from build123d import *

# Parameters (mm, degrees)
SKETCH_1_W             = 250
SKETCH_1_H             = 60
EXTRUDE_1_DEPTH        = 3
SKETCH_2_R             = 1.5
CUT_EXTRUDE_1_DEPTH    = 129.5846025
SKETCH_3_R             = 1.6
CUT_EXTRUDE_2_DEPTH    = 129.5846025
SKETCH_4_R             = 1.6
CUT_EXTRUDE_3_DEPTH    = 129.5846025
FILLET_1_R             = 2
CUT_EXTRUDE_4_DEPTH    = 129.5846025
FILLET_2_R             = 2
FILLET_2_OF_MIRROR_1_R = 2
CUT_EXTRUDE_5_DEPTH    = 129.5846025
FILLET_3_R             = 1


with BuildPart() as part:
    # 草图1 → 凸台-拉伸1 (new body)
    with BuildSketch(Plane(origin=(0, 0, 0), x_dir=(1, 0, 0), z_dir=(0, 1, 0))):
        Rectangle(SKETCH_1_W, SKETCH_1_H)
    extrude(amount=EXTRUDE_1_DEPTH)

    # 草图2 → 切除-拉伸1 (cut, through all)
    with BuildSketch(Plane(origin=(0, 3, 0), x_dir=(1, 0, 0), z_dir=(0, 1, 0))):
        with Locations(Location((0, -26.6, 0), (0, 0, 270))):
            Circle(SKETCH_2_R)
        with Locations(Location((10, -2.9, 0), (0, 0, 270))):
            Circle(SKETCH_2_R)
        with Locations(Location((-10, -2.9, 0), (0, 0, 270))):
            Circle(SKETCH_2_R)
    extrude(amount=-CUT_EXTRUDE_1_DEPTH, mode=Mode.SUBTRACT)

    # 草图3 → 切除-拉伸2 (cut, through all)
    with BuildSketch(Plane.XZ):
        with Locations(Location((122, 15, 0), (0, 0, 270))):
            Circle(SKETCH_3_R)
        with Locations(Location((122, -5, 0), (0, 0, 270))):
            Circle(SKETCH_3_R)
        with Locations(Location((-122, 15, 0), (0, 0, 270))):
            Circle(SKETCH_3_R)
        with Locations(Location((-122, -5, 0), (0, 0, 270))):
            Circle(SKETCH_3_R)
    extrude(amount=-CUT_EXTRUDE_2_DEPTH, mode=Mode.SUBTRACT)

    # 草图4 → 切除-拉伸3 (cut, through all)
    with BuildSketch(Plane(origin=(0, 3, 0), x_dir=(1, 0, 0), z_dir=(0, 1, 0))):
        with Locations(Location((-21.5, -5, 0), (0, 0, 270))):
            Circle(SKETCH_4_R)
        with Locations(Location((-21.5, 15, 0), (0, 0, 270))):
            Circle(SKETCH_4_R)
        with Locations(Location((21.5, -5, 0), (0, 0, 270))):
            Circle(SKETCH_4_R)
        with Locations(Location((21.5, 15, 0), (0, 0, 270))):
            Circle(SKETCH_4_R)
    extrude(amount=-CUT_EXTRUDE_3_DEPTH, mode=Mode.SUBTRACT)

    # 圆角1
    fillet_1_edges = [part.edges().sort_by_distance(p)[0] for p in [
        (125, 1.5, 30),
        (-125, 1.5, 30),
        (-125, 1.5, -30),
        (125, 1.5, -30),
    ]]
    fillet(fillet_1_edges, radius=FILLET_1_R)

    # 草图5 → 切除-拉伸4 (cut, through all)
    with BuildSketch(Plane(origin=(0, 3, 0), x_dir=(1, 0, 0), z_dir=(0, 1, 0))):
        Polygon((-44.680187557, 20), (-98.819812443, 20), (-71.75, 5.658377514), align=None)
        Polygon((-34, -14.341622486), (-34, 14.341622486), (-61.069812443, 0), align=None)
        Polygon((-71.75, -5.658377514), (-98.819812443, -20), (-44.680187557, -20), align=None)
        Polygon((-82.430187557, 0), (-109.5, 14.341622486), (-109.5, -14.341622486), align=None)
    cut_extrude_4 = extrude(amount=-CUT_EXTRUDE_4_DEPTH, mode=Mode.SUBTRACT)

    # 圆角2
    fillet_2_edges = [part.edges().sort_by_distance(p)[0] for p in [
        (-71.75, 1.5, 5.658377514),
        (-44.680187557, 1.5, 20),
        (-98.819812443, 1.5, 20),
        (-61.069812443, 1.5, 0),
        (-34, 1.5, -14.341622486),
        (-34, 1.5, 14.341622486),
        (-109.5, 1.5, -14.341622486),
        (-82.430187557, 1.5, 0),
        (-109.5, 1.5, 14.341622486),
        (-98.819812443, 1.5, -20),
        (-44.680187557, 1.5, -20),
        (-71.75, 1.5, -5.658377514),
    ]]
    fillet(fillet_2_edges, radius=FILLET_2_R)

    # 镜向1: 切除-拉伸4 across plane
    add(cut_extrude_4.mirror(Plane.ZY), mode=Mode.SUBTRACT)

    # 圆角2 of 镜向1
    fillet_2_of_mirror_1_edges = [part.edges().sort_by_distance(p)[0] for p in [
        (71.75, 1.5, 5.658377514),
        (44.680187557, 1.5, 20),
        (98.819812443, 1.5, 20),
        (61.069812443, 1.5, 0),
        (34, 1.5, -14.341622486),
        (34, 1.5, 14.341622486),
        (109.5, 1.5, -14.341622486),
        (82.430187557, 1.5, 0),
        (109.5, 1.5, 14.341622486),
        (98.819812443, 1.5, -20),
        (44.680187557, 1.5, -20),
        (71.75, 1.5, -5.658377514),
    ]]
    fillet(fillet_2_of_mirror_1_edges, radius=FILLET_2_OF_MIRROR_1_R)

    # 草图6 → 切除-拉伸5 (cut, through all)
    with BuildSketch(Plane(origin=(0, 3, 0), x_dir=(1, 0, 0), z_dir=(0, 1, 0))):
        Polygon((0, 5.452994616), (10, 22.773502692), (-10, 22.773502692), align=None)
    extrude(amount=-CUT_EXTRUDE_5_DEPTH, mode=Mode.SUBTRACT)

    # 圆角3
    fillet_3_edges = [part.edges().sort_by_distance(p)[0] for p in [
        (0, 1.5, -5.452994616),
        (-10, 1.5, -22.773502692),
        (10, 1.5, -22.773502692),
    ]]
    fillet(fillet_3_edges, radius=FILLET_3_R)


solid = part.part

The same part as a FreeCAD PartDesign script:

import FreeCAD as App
import Part
import Sketcher
Q = App.Units.Quantity


def edges_at(feature, points):
    """Names of the edges that pass closest to the given points."""
    edges = feature.Shape.Edges
    near = lambda p: min(range(len(edges)), key=lambda i: edges[i].distToShape(Part.Vertex(*p))[0])
    return sorted({f"Edge{near(p) + 1}" for p in points})

doc = App.newDocument("Part")
body = doc.addObject("PartDesign::Body", "Body")

# Sketch on XZ plane
sketch1 = body.newObject("Sketcher::SketchObject", "Sketch")
sketch1.AttachmentSupport = (doc.getObject("XZ_Plane"), [""])
sketch1.MapMode = "FlatFace"
sketch1.addGeometry(Part.LineSegment(App.Vector(-125, -30, 0), App.Vector(-125, 30, 0)), False)
sketch1.addGeometry(Part.LineSegment(App.Vector(-125, 30, 0), App.Vector(125, 30, 0)), False)
sketch1.addGeometry(Part.LineSegment(App.Vector(125, 30, 0), App.Vector(125, -30, 0)), False)
sketch1.addGeometry(Part.LineSegment(App.Vector(125, -30, 0), App.Vector(-125, -30, 0)), False)
sketch1.addConstraint(Sketcher.Constraint("Coincident", 0, 2, 1, 1))
sketch1.addConstraint(Sketcher.Constraint("Coincident", 1, 2, 2, 1))
sketch1.addConstraint(Sketcher.Constraint("Coincident", 2, 2, 3, 1))
sketch1.addConstraint(Sketcher.Constraint("Coincident", 3, 2, 0, 1))
sketch1.addConstraint(Sketcher.Constraint("Vertical", 0))
sketch1.addConstraint(Sketcher.Constraint("Horizontal", 1))
sketch1.addConstraint(Sketcher.Constraint("Vertical", 2))
sketch1.addConstraint(Sketcher.Constraint("Horizontal", 3))
sketch1.addConstraint(Sketcher.Constraint("Symmetric", 0, 2, 2, 2, -1, 1))
sketch1.addConstraint(Sketcher.Constraint("DistanceX", 1, 1, 1, 2, 250.0))
sketch1.addConstraint(Sketcher.Constraint("DistanceY", 0, 1, 0, 2, 60.0))
pad1 = body.newObject("PartDesign::Pad", "Pad")
pad1.Profile = sketch1
pad1.Length = 3
pad1.Reversed = True

# Sketch on XZ plane
sketch2 = body.newObject("Sketcher::SketchObject", "Sketch001")
sketch2.AttachmentSupport = (doc.getObject("XZ_Plane"), [""])
sketch2.MapMode = "FlatFace"
sketch2.AttachmentOffset = App.Placement(App.Vector(0, 0, -3), App.Rotation())
sketch2.addGeometry(Part.Circle(App.Vector(0, 26.6, 0), App.Vector(0, 0, 1), 1.5), False)
sketch2.addGeometry(Part.Circle(App.Vector(10, 2.9, 0), App.Vector(0, 0, 1), 1.5), False)
sketch2.addGeometry(Part.Circle(App.Vector(-10, 2.9, 0), App.Vector(0, 0, 1), 1.5), False)
sketch2.addConstraint(Sketcher.Constraint("Equal", 0, 1))
sketch2.addConstraint(Sketcher.Constraint("Equal", 1, 2))
sketch2.addConstraint(Sketcher.Constraint("Symmetric", 1, 3, 2, 3, -2))
sketch2.addConstraint(Sketcher.Constraint("PointOnObject", 0, 3, -2))
sketch2.addConstraint(Sketcher.Constraint("Diameter", 0, 3.0))
sketch2.addConstraint(Sketcher.Constraint("DistanceX", -1, 1, 1, 3, 10.0))
sketch2.addConstraint(Sketcher.Constraint("DistanceY", -1, 1, 0, 3, 26.6))
sketch2.addConstraint(Sketcher.Constraint("DistanceY", -1, 1, 1, 3, 2.9))
pocket1 = body.newObject("PartDesign::Pocket", "Pocket")
pocket1.Profile = sketch2
pocket1.Type = "ThroughAll"
pocket1.Reversed = True

# Sketch on XZ plane
sketch3 = body.newObject("Sketcher::SketchObject", "Sketch002")
sketch3.AttachmentSupport = (doc.getObject("XZ_Plane"), [""])
sketch3.MapMode = "FlatFace"
sketch3.addGeometry(Part.Circle(App.Vector(122, 15, 0), App.Vector(0, 0, 1), 1.6), False)
sketch3.addGeometry(Part.Circle(App.Vector(122, -5, 0), App.Vector(0, 0, 1), 1.6), False)
sketch3.addGeometry(Part.Circle(App.Vector(-122, 15, 0), App.Vector(0, 0, 1), 1.6), False)
sketch3.addGeometry(Part.Circle(App.Vector(-122, -5, 0), App.Vector(0, 0, 1), 1.6), False)
sketch3.addConstraint(Sketcher.Constraint("Equal", 0, 1))
sketch3.addConstraint(Sketcher.Constraint("Equal", 1, 2))
sketch3.addConstraint(Sketcher.Constraint("Equal", 2, 3))
sketch3.addConstraint(Sketcher.Constraint("Symmetric", 0, 3, 2, 3, -2))
sketch3.addConstraint(Sketcher.Constraint("Symmetric", 1, 3, 3, 3, -2))
sketch3.addConstraint(Sketcher.Constraint("Vertical", 0, 3, 1, 3))
sketch3.addConstraint(Sketcher.Constraint("Diameter", 0, 3.2))
sketch3.addConstraint(Sketcher.Constraint("DistanceX", -1, 1, 0, 3, 122.0))
sketch3.addConstraint(Sketcher.Constraint("DistanceY", -1, 1, 0, 3, 15.0))
sketch3.addConstraint(Sketcher.Constraint("DistanceY", 1, 3, -1, 1, 5.0))
pocket2 = body.newObject("PartDesign::Pocket", "Pocket001")
pocket2.Profile = sketch3
pocket2.Type = "ThroughAll"

# Sketch on XZ plane
sketch4 = body.newObject("Sketcher::SketchObject", "Sketch003")
sketch4.AttachmentSupport = (doc.getObject("XZ_Plane"), [""])
sketch4.MapMode = "FlatFace"
sketch4.AttachmentOffset = App.Placement(App.Vector(0, 0, -3), App.Rotation())
sketch4.addGeometry(Part.Circle(App.Vector(-21.5, 5, 0), App.Vector(0, 0, 1), 1.6), False)
sketch4.addGeometry(Part.Circle(App.Vector(-21.5, -15, 0), App.Vector(0, 0, 1), 1.6), False)
sketch4.addGeometry(Part.Circle(App.Vector(21.5, 5, 0), App.Vector(0, 0, 1), 1.6), False)
sketch4.addGeometry(Part.Circle(App.Vector(21.5, -15, 0), App.Vector(0, 0, 1), 1.6), False)
sketch4.addConstraint(Sketcher.Constraint("Equal", 0, 1))
sketch4.addConstraint(Sketcher.Constraint("Equal", 1, 2))
sketch4.addConstraint(Sketcher.Constraint("Equal", 2, 3))
sketch4.addConstraint(Sketcher.Constraint("Symmetric", 0, 3, 2, 3, -2))
sketch4.addConstraint(Sketcher.Constraint("Symmetric", 1, 3, 3, 3, -2))
sketch4.addConstraint(Sketcher.Constraint("Vertical", 0, 3, 1, 3))
sketch4.addConstraint(Sketcher.Constraint("Diameter", 0, 3.2))
sketch4.addConstraint(Sketcher.Constraint("DistanceY", -1, 1, 0, 3, 5.0))
sketch4.addConstraint(Sketcher.Constraint("DistanceY", 1, 3, -1, 1, 15.0))
sketch4.addConstraint(Sketcher.Constraint("DistanceX", 0, 3, 2, 3, 43.0))
pocket3 = body.newObject("PartDesign::Pocket", "Pocket002")
pocket3.Profile = sketch4
pocket3.Type = "ThroughAll"
pocket3.Reversed = True
doc.recompute()

fillet = body.newObject("PartDesign::Fillet", "Fillet")
fillet.Base = (pocket3, edges_at(pocket3, [
    (125, 1.5, 30),
    (-125, 1.5, 30),
    (-125, 1.5, -30),
    (125, 1.5, -30),
]))
fillet.Radius = 2

# Sketch on XZ plane
sketch5 = body.newObject("Sketcher::SketchObject", "Sketch004")
sketch5.AttachmentSupport = (doc.getObject("XZ_Plane"), [""])
sketch5.MapMode = "FlatFace"
sketch5.AttachmentOffset = App.Placement(App.Vector(0, 0, -3), App.Rotation())
sketch5.addGeometry(Part.LineSegment(App.Vector(-45, -20, 0), App.Vector(-99, -20, 0)), False)
sketch5.addGeometry(Part.LineSegment(App.Vector(-99, -20, 0), App.Vector(-72, -6, 0)), False)
sketch5.addGeometry(Part.LineSegment(App.Vector(-72, -6, 0), App.Vector(-45, -20, 0)), False)
sketch5.addGeometry(Part.LineSegment(App.Vector(-34, 14, 0), App.Vector(-34, -14, 0)), False)
sketch5.addGeometry(Part.LineSegment(App.Vector(-34, -14, 0), App.Vector(-61, 0, 0)), False)
sketch5.addGeometry(Part.LineSegment(App.Vector(-61, 0, 0), App.Vector(-34, 14, 0)), False)
sketch5.addGeometry(Part.LineSegment(App.Vector(-72, 6, 0), App.Vector(-99, 20, 0)), False)
sketch5.addGeometry(Part.LineSegment(App.Vector(-99, 20, 0), App.Vector(-45, 20, 0)), False)
sketch5.addGeometry(Part.LineSegment(App.Vector(-45, 20, 0), App.Vector(-72, 6, 0)), False)
sketch5.addGeometry(Part.LineSegment(App.Vector(-82, 0, 0), App.Vector(-110, -14, 0)), False)
sketch5.addGeometry(Part.LineSegment(App.Vector(-110, -14, 0), App.Vector(-110, 14, 0)), False)
sketch5.addGeometry(Part.LineSegment(App.Vector(-110, 14, 0), App.Vector(-82, 0, 0)), False)
sketch5.addConstraint(Sketcher.Constraint("Coincident", 0, 2, 1, 1))
sketch5.addConstraint(Sketcher.Constraint("Coincident", 1, 2, 2, 1))
sketch5.addConstraint(Sketcher.Constraint("Coincident", 2, 2, 0, 1))
sketch5.addConstraint(Sketcher.Constraint("Coincident", 3, 2, 4, 1))
sketch5.addConstraint(Sketcher.Constraint("Coincident", 4, 2, 5, 1))
sketch5.addConstraint(Sketcher.Constraint("Coincident", 5, 2, 3, 1))
sketch5.addConstraint(Sketcher.Constraint("Coincident", 6, 2, 7, 1))
sketch5.addConstraint(Sketcher.Constraint("Coincident", 7, 2, 8, 1))
sketch5.addConstraint(Sketcher.Constraint("Coincident", 8, 2, 6, 1))
sketch5.addConstraint(Sketcher.Constraint("Coincident", 9, 2, 10, 1))
sketch5.addConstraint(Sketcher.Constraint("Coincident", 10, 2, 11, 1))
sketch5.addConstraint(Sketcher.Constraint("Coincident", 11, 2, 9, 1))
sketch5.addConstraint(Sketcher.Constraint("Horizontal", 0))
sketch5.addConstraint(Sketcher.Constraint("Vertical", 3))
sketch5.addConstraint(Sketcher.Constraint("Horizontal", 7))
sketch5.addConstraint(Sketcher.Constraint("Vertical", 10))
sketch5.addConstraint(Sketcher.Constraint("Symmetric", 0, 2, 6, 2, -1))
sketch5.addConstraint(Sketcher.Constraint("Symmetric", 1, 2, 8, 2, -1))
sketch5.addConstraint(Sketcher.Constraint("PointOnObject", 4, 2, -1))
sketch5.addConstraint(Sketcher.Constraint("PointOnObject", 11, 2, -1))
sketch5.addConstraint(Sketcher.Constraint("Parallel", 2, 4))
sketch5.addConstraint(Sketcher.Constraint("Parallel", 1, 5))
sketch5.addConstraint(Sketcher.Constraint("Parallel", 4, 6))
sketch5.addConstraint(Sketcher.Constraint("Parallel", 5, 8))
sketch5.addConstraint(Sketcher.Constraint("Parallel", 8, 9))
sketch5.addConstraint(Sketcher.Constraint("Parallel", 6, 11))
sketch5.addConstraint(Sketcher.Constraint("Horizontal", 3, 2, 9, 2))
sketch5.addConstraint(Sketcher.Constraint("Equal", 2, 4))
sketch5.addConstraint(Sketcher.Constraint("DistanceY", 0, 2, -1, 1, 20.0))
sketch5.addConstraint(Sketcher.Constraint("DistanceX", 3, 2, -1, 1, 34.0))
sketch5.addConstraint(Sketcher.Constraint("DistanceX", 9, 2, -1, 1, 109.5))
sketch5.addConstraint(Sketcher.Constraint("DistanceX", 1, 2, -1, 1, 71.75))
sketch5.addConstraint(Sketcher.Constraint("DistanceX", 0, 2, 0, 1, 54.139625))
sketch5.addConstraint(Sketcher.Constraint("DistanceY", 3, 2, 3, 1, 28.683245))
pocket4 = body.newObject("PartDesign::Pocket", "Pocket003")
pocket4.Profile = sketch5
pocket4.Type = "ThroughAll"
pocket4.Reversed = True
doc.recompute()

fillet2 = body.newObject("PartDesign::Fillet", "Fillet001")
fillet2.Base = (pocket4, edges_at(pocket4, [
    (-71.75, 1.5, 5.658),
    (-44.68, 1.5, 20),
    (-98.82, 1.5, 20),
    (-61.07, 1.5, 0),
    (-34, 1.5, -14.342),
    (-34, 1.5, 14.342),
    (-109.5, 1.5, -14.342),
    (-82.43, 1.5, 0),
    (-109.5, 1.5, 14.342),
    (-98.82, 1.5, -20),
    (-44.68, 1.5, -20),
    (-71.75, 1.5, -5.658),
]))
fillet2.Radius = 2
doc.recompute()

mirrored = body.newObject("PartDesign::Mirrored", "Mirrored")
mirrored.Originals = [pocket4]
mirrored.MirrorPlane = (doc.getObject("YZ_Plane"), [""])
body.Tip = mirrored
doc.recompute()

fillet3 = body.newObject("PartDesign::Fillet", "Fillet002")
fillet3.Base = (mirrored, edges_at(mirrored, [
    (71.75, 1.5, 5.658),
    (44.68, 1.5, 20),
    (98.82, 1.5, 20),
    (61.07, 1.5, 0),
    (34, 1.5, -14.342),
    (34, 1.5, 14.342),
    (109.5, 1.5, -14.342),
    (82.43, 1.5, 0),
    (109.5, 1.5, 14.342),
    (98.82, 1.5, -20),
    (44.68, 1.5, -20),
    (71.75, 1.5, -5.658),
]))
fillet3.Radius = 2

# Sketch on XZ plane
sketch6 = body.newObject("Sketcher::SketchObject", "Sketch005")
sketch6.AttachmentSupport = (doc.getObject("XZ_Plane"), [""])
sketch6.MapMode = "FlatFace"
sketch6.AttachmentOffset = App.Placement(App.Vector(0, 0, -3), App.Rotation())
sketch6.addGeometry(Part.LineSegment(App.Vector(0, -5, 0), App.Vector(10, -23, 0)), False)
sketch6.addGeometry(Part.LineSegment(App.Vector(10, -23, 0), App.Vector(-10, -23, 0)), False)
sketch6.addGeometry(Part.LineSegment(App.Vector(-10, -23, 0), App.Vector(0, -5, 0)), False)
sketch6.addConstraint(Sketcher.Constraint("Coincident", 0, 2, 1, 1))
sketch6.addConstraint(Sketcher.Constraint("Coincident", 1, 2, 2, 1))
sketch6.addConstraint(Sketcher.Constraint("Coincident", 2, 2, 0, 1))
sketch6.addConstraint(Sketcher.Constraint("Horizontal", 1))
sketch6.addConstraint(Sketcher.Constraint("PointOnObject", 2, 2, -2))
sketch6.addConstraint(Sketcher.Constraint("Equal", 0, 2))
sketch6.addConstraint(Sketcher.Constraint("DistanceX", 1, 2, 1, 1, 20.0))
sketch6.addConstraint(Sketcher.Constraint("Angle", 0, Q("-60 deg")))
sketch6.addConstraint(Sketcher.Constraint("DistanceY", 0, 2, -1, 1, 22.773503))
pocket5 = body.newObject("PartDesign::Pocket", "Pocket004")
pocket5.Profile = sketch6
pocket5.Type = "ThroughAll"
pocket5.Reversed = True
doc.recompute()

fillet4 = body.newObject("PartDesign::Fillet", "Fillet003")
fillet4.Base = (pocket5, edges_at(pocket5, [(0, 1.5, -5.453), (-10, 1.5, -22.774), (10, 1.5, -22.774)]))
fillet4.Radius = 1

doc.recompute()
